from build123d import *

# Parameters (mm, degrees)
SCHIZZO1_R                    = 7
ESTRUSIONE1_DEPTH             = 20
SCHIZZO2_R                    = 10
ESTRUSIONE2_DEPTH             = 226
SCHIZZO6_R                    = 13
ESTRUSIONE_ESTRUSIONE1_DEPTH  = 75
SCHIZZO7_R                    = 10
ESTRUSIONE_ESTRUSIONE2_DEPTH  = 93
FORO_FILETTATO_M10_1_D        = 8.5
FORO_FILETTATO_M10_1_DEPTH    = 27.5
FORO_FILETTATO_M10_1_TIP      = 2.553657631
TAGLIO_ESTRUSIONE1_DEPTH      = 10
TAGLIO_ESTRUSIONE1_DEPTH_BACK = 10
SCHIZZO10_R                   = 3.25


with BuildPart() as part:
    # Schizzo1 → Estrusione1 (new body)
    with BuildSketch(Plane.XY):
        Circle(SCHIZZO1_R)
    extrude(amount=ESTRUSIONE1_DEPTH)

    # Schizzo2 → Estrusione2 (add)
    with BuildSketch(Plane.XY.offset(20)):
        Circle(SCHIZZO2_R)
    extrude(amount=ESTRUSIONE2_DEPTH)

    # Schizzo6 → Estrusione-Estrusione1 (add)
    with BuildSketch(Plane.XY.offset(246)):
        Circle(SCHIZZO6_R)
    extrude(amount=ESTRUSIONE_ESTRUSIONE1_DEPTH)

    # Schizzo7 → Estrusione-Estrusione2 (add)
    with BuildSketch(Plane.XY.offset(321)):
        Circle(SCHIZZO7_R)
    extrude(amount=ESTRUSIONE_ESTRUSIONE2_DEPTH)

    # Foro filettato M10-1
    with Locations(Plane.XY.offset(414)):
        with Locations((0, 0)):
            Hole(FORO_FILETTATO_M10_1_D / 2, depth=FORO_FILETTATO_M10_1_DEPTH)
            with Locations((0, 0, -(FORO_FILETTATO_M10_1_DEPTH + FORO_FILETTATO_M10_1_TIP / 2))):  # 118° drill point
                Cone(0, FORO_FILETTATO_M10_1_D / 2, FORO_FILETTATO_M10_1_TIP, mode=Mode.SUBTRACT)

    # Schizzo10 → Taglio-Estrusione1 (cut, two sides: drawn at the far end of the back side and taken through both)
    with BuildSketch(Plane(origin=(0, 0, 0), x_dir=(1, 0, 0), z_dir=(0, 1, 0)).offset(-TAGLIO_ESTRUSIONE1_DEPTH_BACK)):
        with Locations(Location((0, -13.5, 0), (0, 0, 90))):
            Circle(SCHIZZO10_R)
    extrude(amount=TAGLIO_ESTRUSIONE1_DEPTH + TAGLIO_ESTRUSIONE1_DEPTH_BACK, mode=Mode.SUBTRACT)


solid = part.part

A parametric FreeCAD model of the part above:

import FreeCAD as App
import Part
import Sketcher

V = App.Vector
Q = App.Units.Quantity

doc = App.newDocument("Part")
body = doc.addObject("PartDesign::Body", "Body")

sketch1 = body.newObject("Sketcher::SketchObject", "Sketch")
sketch1.AttachmentSupport = (doc.getObject("XY_Plane"), [""])
sketch1.MapMode = "FlatFace"
sketch1.addGeometry(Part.Circle(V(0, 0, 0), V(0, 0, 1), 7), False)
sketch1.addConstraint([
    Sketcher.Constraint("Coincident", 0, 3, -1, 1),
    Sketcher.Constraint("Diameter", 0, Q("14 mm")),
])
pad1 = body.newObject("PartDesign::Pad", "Pad")
pad1.Profile = sketch1
pad1.Length = 20

sketch2 = body.newObject("Sketcher::SketchObject", "Sketch001")
sketch2.AttachmentSupport = (doc.getObject("XY_Plane"), [""])
sketch2.MapMode = "FlatFace"
sketch2.AttachmentOffset = App.Placement(V(0, 0, 20), App.Rotation())
sketch2.addGeometry(Part.Circle(V(0, 0, 0), V(0, 0, 1), 10), False)
sketch2.addConstraint([
    Sketcher.Constraint("Coincident", 0, 3, -1, 1),
    Sketcher.Constraint("Diameter", 0, Q("20 mm")),
])
pad2 = body.newObject("PartDesign::Pad", "Pad001")
pad2.Profile = sketch2
pad2.Length = 226

sketch3 = body.newObject("Sketcher::SketchObject", "Sketch002")
sketch3.AttachmentSupport = (doc.getObject("XY_Plane"), [""])
sketch3.MapMode = "FlatFace"
sketch3.AttachmentOffset = App.Placement(V(0, 0, 246), App.Rotation())
sketch3.addGeometry(Part.Circle(V(0, 0, 0), V(0, 0, 1), 13), False)
sketch3.addConstraint([
    Sketcher.Constraint("Coincident", 0, 3, -1, 1),
    Sketcher.Constraint("Diameter", 0, Q("26 mm")),
])
pad3 = body.newObject("PartDesign::Pad", "Pad002")
pad3.Profile = sketch3
pad3.Length = 75

sketch4 = body.newObject("Sketcher::SketchObject", "Sketch003")
sketch4.AttachmentSupport = (doc.getObject("XY_Plane"), [""])
sketch4.MapMode = "FlatFace"
sketch4.AttachmentOffset = App.Placement(V(0, 0, 321), App.Rotation())
sketch4.addGeometry(Part.Circle(V(0, 0, 0), V(0, 0, 1), 10), False)
sketch4.addConstraint([
    Sketcher.Constraint("Coincident", 0, 3, -1, 1),
    Sketcher.Constraint("Diameter", 0, Q("20 mm")),
])
pad4 = body.newObject("PartDesign::Pad", "Pad003")
pad4.Profile = sketch4
pad4.Length = 93

sketch5 = body.newObject("Sketcher::SketchObject", "Sketch004")
sketch5.AttachmentSupport = (doc.getObject("XY_Plane"), [""])
sketch5.MapMode = "FlatFace"
sketch5.AttachmentOffset = App.Placement(V(0, 0, 414), App.Rotation())
sketch5.addGeometry(Part.Circle(V(0, 0, 0), V(0, 0, 1), 4.25), False)
sketch5.addConstraint([
    Sketcher.Constraint("Coincident", 0, 3, -1, 1),
    Sketcher.Constraint("Diameter", 0, Q("8.5 mm")),
])
doc.recompute()
hole = body.newObject("PartDesign::Hole", "Hole")
hole.Profile = sketch5
hole.ThreadType = "None"
hole.Diameter = 8.5
hole.DepthType = "Dimension"
hole.Depth = 27.5
hole.DrillPoint = "Angled"
hole.DrillPointAngle = 118

sketch6 = body.newObject("Sketcher::SketchObject", "Sketch005")
sketch6.AttachmentSupport = (doc.getObject("XZ_Plane"), [""])
sketch6.MapMode = "FlatFace"
sketch6.addGeometry(Part.Circle(V(0, 13.5, 0), V(0, 0, 1), 3.25), False)
sketch6.addConstraint([
    Sketcher.Constraint("PointOnObject", 0, 3, -2),
    Sketcher.Constraint("Diameter", 0, Q("6.5 mm")),
    Sketcher.Constraint("DistanceY", -1, 1, 0, 3, Q("13.5 mm")),
])
pocket1 = body.newObject("PartDesign::Pocket", "Pocket")
pocket1.Profile = sketch6
pocket1.Type = "ThroughAll"
pocket1.Midplane = True

doc.recompute()
